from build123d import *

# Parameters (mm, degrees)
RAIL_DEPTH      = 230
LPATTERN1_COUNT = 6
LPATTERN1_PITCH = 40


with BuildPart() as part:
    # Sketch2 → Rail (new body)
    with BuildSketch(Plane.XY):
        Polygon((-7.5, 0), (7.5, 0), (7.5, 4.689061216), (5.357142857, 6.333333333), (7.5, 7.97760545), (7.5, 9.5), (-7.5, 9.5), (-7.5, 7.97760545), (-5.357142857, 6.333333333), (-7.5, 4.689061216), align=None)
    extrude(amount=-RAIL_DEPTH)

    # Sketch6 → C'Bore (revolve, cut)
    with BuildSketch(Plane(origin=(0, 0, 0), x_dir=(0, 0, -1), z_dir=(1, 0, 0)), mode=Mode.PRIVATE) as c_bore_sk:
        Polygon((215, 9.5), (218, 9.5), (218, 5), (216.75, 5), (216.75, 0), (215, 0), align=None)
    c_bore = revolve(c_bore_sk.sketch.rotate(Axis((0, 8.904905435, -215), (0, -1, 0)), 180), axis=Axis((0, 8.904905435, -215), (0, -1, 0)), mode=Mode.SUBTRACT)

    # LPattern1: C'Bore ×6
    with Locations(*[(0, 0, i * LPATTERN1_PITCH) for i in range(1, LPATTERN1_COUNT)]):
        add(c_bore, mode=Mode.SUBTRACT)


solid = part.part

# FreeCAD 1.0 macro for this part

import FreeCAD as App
import Part
import Sketcher

V = App.Vector
Q = App.Units.Quantity

doc = App.newDocument("Part")
body = doc.addObject("PartDesign::Body", "Body")

# Sketch on XY plane
sketch1 = body.newObject("Sketcher::SketchObject", "Sketch")
sketch1.AttachmentSupport = (doc.getObject("XY_Plane"), [""])
sketch1.MapMode = "FlatFace"
sketch1.addGeometry([
    Part.LineSegment(V(-7.5, 0, 0), V(7.5, 0, 0)),  # 0
    Part.LineSegment(V(7.5, 0, 0), V(7.5, 4.7, 0)),  # 1
    Part.LineSegment(V(7.5, 4.7, 0), V(5.4, 6.3, 0)),  # 2
    Part.LineSegment(V(5.4, 6.3, 0), V(7.5, 8, 0)),  # 3
    Part.LineSegment(V(7.5, 8, 0), V(7.5, 9.5, 0)),  # 4
    Part.LineSegment(V(7.5, 9.5, 0), V(-7.5, 9.5, 0)),  # 5
    Part.LineSegment(V(-7.5, 9.5, 0), V(-7.5, 8, 0)),  # 6
    Part.LineSegment(V(-7.5, 8, 0), V(-5.4, 6.3, 0)),  # 7
    Part.LineSegment(V(-5.4, 6.3, 0), V(-7.5, 4.7, 0)),  # 8
    Part.LineSegment(V(-7.5, 4.7, 0), V(-7.5, 0, 0)),  # 9
], False)
sketch1.addConstraint([
    Sketcher.Constraint("Coincident", 0, 2, 1, 1),
    Sketcher.Constraint("Coincident", 1, 2, 2, 1),
    Sketcher.Constraint("Coincident", 2, 2, 3, 1),
    Sketcher.Constraint("Coincident", 3, 2, 4, 1),
    Sketcher.Constraint("Coincident", 4, 2, 5, 1),
    Sketcher.Constraint("Coincident", 5, 2, 6, 1),
    Sketcher.Constraint("Coincident", 6, 2, 7, 1),
    Sketcher.Constraint("Coincident", 7, 2, 8, 1),
    Sketcher.Constraint("Coincident", 8, 2, 9, 1),
    Sketcher.Constraint("Coincident", 9, 2, 0, 1),
    Sketcher.Constraint("Horizontal", 0),
    Sketcher.Constraint("Vertical", 1),
    Sketcher.Constraint("Vertical", 4),
    Sketcher.Constraint("Horizontal", 5),
    Sketcher.Constraint("Vertical", 6),
    Sketcher.Constraint("Vertical", 9),
    Sketcher.Constraint("Symmetric", 0, 2, 9, 2, -1, 1),
    Sketcher.Constraint("Symmetric", 3, 2, 6, 2, -2),
    Sketcher.Constraint("Symmetric", 2, 2, 7, 2, -2),
    Sketcher.Constraint("Parallel", 2, 7),
    Sketcher.Constraint("Parallel", 3, 8),
    Sketcher.Constraint("Vertical", 1, 2, 3, 2),
    Sketcher.Constraint("DistanceX", 0, 1, 0, 2, 15.0),
    Sketcher.Constraint("Angle", 2, Q("142.5 deg")),
    Sketcher.Constraint("DistanceY", -1, 1, 4, 2, 9.5),
    Sketcher.Constraint("DistanceY", 1, 1, 1, 2, 4.689061),
    Sketcher.Constraint("DistanceY", 4, 1, 4, 2, 1.522395),
])
pad1 = body.newObject("PartDesign::Pad", "Pad")
pad1.Profile = sketch1
pad1.Length = 230
pad1.Reversed = True

# Sketch on YZ plane
sketch2 = body.newObject("Sketcher::SketchObject", "Sketch001")
sketch2.AttachmentSupport = (doc.getObject("YZ_Plane"), [""])
sketch2.MapMode = "FlatFace"
sketch2.addGeometry([
    Part.LineSegment(V(9.5, -218, 0), V(9.5, -215, 0)),  # 0
    Part.LineSegment(V(9.5, -215, 0), V(0, -215, 0)),  # 1
    Part.LineSegment(V(0, -215, 0), V(0, -216.8, 0)),  # 2
    Part.LineSegment(V(0, -216.8, 0), V(5, -216.8, 0)),  # 3
    Part.LineSegment(V(5, -216.8, 0), V(5, -218, 0)),  # 4
    Part.LineSegment(V(5, -218, 0), V(9.5, -218, 0)),  # 5
], False)
sketch2.addGeometry(Part.LineSegment(V(9.5, -215, 0), V(0, -215, 0)), True)  # axis
sketch2.addConstraint([
    Sketcher.Constraint("Coincident", 0, 2, 1, 1),
    Sketcher.Constraint("Coincident", 1, 2, 2, 1),
    Sketcher.Constraint("Coincident", 2, 2, 3, 1),
    Sketcher.Constraint("Coincident", 3, 2, 4, 1),
    Sketcher.Constraint("Coincident", 4, 2, 5, 1),
    Sketcher.Constraint("Coincident", 5, 2, 0, 1),
    Sketcher.Constraint("Vertical", 0),
    Sketcher.Constraint("Horizontal", 1),
    Sketcher.Constraint("Vertical", 2),
    Sketcher.Constraint("Horizontal", 3),
    Sketcher.Constraint("Vertical", 4),
    Sketcher.Constraint("Horizontal", 5),
    Sketcher.Constraint("Horizontal", 6),
    Sketcher.Constraint("Coincident", 6, 1, 0, 2),
    Sketcher.Constraint("PointOnObject", 1, 2, -2),
    Sketcher.Constraint("PointOnObject", 6, 2, -2),
    Sketcher.Constraint("DistanceX", 3, 1, 3, 2, 5.0),
    Sketcher.Constraint("DistanceY", 0, 1, 0, 2, 3.0),
    Sketcher.Constraint("DistanceX", 1, 2, 1, 1, 9.5),
    Sketcher.Constraint("DistanceY", 0, 2, -1, 1, 215.0),
    Sketcher.Constraint("DistanceY", 2, 2, 2, 1, 1.75),
])
groove = body.newObject("PartDesign::Groove", "Groove")
groove.Profile = sketch2
groove.ReferenceAxis = (sketch2, ["Axis0"])
groove.Angle = 360
doc.recompute()

linearpattern = body.newObject("PartDesign::LinearPattern", "LinearPattern")
linearpattern.Originals = [groove]
linearpattern.Direction = (doc.getObject("Z_Axis"), [""])
linearpattern.Mode = "offset"
linearpattern.Offset = 40
linearpattern.Occurrences = 6
body.Tip = linearpattern

doc.recompute()
